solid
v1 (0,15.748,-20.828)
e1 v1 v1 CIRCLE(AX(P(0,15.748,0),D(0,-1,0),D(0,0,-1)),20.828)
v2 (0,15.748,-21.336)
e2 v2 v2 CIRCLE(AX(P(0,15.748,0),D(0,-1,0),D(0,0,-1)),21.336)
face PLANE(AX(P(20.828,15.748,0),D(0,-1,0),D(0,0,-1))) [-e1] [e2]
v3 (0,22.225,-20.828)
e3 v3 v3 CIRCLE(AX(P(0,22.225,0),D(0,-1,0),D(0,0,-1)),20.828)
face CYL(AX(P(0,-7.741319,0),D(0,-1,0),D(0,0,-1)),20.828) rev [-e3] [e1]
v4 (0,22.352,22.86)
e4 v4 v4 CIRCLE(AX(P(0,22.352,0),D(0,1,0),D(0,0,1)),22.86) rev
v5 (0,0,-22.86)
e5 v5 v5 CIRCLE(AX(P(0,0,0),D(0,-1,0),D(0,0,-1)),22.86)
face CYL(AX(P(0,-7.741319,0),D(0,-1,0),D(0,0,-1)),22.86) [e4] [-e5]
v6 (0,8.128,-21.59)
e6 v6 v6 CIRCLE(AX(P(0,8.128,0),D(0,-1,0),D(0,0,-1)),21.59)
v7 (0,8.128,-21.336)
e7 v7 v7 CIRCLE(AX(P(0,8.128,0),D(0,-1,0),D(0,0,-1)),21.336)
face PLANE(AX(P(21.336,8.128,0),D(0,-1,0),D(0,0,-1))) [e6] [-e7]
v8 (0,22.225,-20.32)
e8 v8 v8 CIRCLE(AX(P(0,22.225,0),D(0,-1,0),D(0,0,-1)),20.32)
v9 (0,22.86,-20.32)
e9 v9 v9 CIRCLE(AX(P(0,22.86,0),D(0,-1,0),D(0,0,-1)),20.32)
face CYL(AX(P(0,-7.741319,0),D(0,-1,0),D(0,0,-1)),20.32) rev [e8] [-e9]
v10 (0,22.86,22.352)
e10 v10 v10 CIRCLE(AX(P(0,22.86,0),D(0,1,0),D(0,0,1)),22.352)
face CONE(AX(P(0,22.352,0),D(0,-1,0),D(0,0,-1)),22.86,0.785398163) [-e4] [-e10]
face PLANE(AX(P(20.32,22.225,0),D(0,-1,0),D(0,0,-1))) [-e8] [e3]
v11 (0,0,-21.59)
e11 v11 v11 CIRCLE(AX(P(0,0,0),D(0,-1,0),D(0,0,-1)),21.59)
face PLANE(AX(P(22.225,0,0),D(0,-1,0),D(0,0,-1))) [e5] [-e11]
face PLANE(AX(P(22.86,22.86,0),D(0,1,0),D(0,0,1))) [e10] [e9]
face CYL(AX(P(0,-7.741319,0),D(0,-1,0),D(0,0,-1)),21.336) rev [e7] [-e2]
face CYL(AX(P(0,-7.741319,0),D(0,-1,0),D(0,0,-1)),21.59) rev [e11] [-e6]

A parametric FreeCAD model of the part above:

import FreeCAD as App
import Part
import Sketcher
from FreeCAD import Vector
Q = App.Units.Quantity


def edges_at(feature, points):
    """Names of the edges that pass closest to the given points."""
    edges = feature.Shape.Edges
    near = lambda p: min(range(len(edges)), key=lambda i: edges[i].distToShape(Part.Vertex(*p))[0])
    return sorted({f"Edge{near(p) + 1}" for p in points})

doc = App.newDocument("Part")
params = doc.addObject("Spreadsheet::Sheet", "Params")
for row, (alias, value) in enumerate([
    ("sketch1_width", "0.1 in"),
    ("sketch1_height", "0.3 in"),
    ("sketch1_height2", "0.9 in"),
    ("sketch1_width2", "0.02 in"),
    ("sketch1_width3", "0.01 in"),
    ("revolution_angle", "360 deg"),
    ("chamfer_size", "0.02 in"),
    ("chamfer2_size", "0.01 in"),
    ("sketch2_diameter", "1.8 in"),
    ("sketch2_diameter2", "1.7 in"),
    ("pad1_length", "0.095 in"),
], start=1):
    params.set(f"A{row}", alias)
    params.set(f"B{row}", "=" + value)
    params.setAlias(f"B{row}", alias)

body = doc.addObject("PartDesign::Body", "Body")

sketch1 = body.newObject("Sketcher::SketchObject", "Sketch")
sketch1.AttachmentSupport = (doc.getObject("XY_Plane"), [""])
sketch1.MapMode = "FlatFace"
sketch1.addGeometry([
    Part.LineSegment(Vector(20.32, 22.86, 0), Vector(20.32, 22.23, 0)),
    Part.LineSegment(Vector(20.32, 22.23, 0), Vector(20.83, 22.23, 0)),
    Part.LineSegment(Vector(20.83, 22.23, 0), Vector(20.83, 15.75, 0)),
    Part.LineSegment(Vector(20.83, 15.75, 0), Vector(21.34, 15.75, 0)),
    Part.LineSegment(Vector(21.34, 15.75, 0), Vector(21.34, 8.13, 0)),
    Part.LineSegment(Vector(21.34, 8.13, 0), Vector(21.59, 8.13, 0)),
    Part.LineSegment(Vector(21.59, 8.13, 0), Vector(21.59, 2.41, 0)),
    Part.LineSegment(Vector(21.59, 2.41, 0), Vector(22.23, 2.41, 0)),
    Part.LineSegment(Vector(22.23, 2.41, 0), Vector(22.23, 0, 0)),
    Part.LineSegment(Vector(22.23, 0, 0), Vector(22.86, 0, 0)),
    Part.LineSegment(Vector(22.86, 0, 0), Vector(22.86, 22.86, 0)),
    Part.LineSegment(Vector(22.86, 22.86, 0), Vector(20.32, 22.86, 0)),
], False)
sketch1.addConstraint([
    Sketcher.Constraint("Coincident", 0, 2, 1, 1),
    Sketcher.Constraint("Coincident", 1, 2, 2, 1),
    Sketcher.Constraint("Coincident", 2, 2, 3, 1),
    Sketcher.Constraint("Coincident", 3, 2, 4, 1),
    Sketcher.Constraint("Coincident", 4, 2, 5, 1),
    Sketcher.Constraint("Coincident", 5, 2, 6, 1),
    Sketcher.Constraint("Coincident", 6, 2, 7, 1),
    Sketcher.Constraint("Coincident", 7, 2, 8, 1),
    Sketcher.Constraint("Coincident", 8, 2, 9, 1),
    Sketcher.Constraint("Coincident", 9, 2, 10, 1),
    Sketcher.Constraint("Coincident", 10, 2, 11, 1),
    Sketcher.Constraint("Coincident", 11, 2, 0, 1),
    Sketcher.Constraint("Vertical", 0),
    Sketcher.Constraint("Horizontal", 1),
    Sketcher.Constraint("Vertical", 2),
    Sketcher.Constraint("Horizontal", 3),
    Sketcher.Constraint("Vertical", 4),
    Sketcher.Constraint("Horizontal", 5),
    Sketcher.Constraint("Vertical", 6),
    Sketcher.Constraint("Horizontal", 7),
    Sketcher.Constraint("Vertical", 8),
    Sketcher.Constraint("Horizontal", 9),
    Sketcher.Constraint("Vertical", 10),
    Sketcher.Constraint("Horizontal", 11),
    Sketcher.Constraint("PointOnObject", 8, 2, -1),
    Sketcher.Constraint("Equal", 1, 3),
    Sketcher.Constraint("Equal", 7, 9),
    Sketcher.Constraint("Equal", 9, 0),
    Sketcher.Constraint("DistanceX", 11, 2, 11, 1, Q("0.1 in")),
    Sketcher.Constraint("DistanceY", 4, 2, 4, 1, Q("0.3 in")),
    Sketcher.Constraint("DistanceY", 10, 1, 10, 2, Q("0.9 in")),
    Sketcher.Constraint("DistanceX", 1, 1, 1, 2, Q("0.02 in")),
    Sketcher.Constraint("DistanceX", 5, 1, 5, 2, Q("0.01 in")),
    Sketcher.Constraint("DistanceX", -1, 1, 0, 2, Q("0.8 in")),
    Sketcher.Constraint("DistanceY", 2, 2, 2, 1, Q("0.255 in")),
    Sketcher.Constraint("DistanceY", 6, 2, 6, 1, Q("0.225 in")),
])
sketch1.setExpression("Constraints[28]", "Params.sketch1_width")
sketch1.setExpression("Constraints[29]", "Params.sketch1_height")
sketch1.setExpression("Constraints[30]", "Params.sketch1_height2")
sketch1.setExpression("Constraints[31]", "Params.sketch1_width2")
sketch1.setExpression("Constraints[32]", "Params.sketch1_width3")
revolution = body.newObject("PartDesign::Revolution", "Revolution")
revolution.Profile = sketch1
revolution.ReferenceAxis = (sketch1, ["V_Axis"])
revolution.setExpression("Angle", "Params.revolution_angle")
doc.recompute()

chamfer = body.newObject("PartDesign::Chamfer", "Chamfer")
chamfer.Base = (revolution, edges_at(revolution, [(0, 22.86, 22.86)]))
chamfer.setExpression("Size", "Params.chamfer_size")
doc.recompute()

chamfer2 = body.newObject("PartDesign::Chamfer", "Chamfer001")
chamfer2.Base = (chamfer, edges_at(chamfer, [(0, 0, 22.225)]))
chamfer2.setExpression("Size", "Params.chamfer2_size")

sketch2 = body.newObject("Sketcher::SketchObject", "Sketch001")
sketch2.AttachmentSupport = (doc.getObject("XZ_Plane"), [""])
sketch2.MapMode = "FlatFace"
sketch2.addGeometry([
    Part.Circle(Vector(0, 0, 0), Vector(0, 0, 1), 23),
    Part.Circle(Vector(0, 0, 0), Vector(0, 0, 1), 22),
], False)
sketch2.addConstraint([
    Sketcher.Constraint("Coincident", 0, 3, -1, 1),
    Sketcher.Constraint("Coincident", 1, 3, -1, 1),
    Sketcher.Constraint("Diameter", 0, Q("1.8 in")),
    Sketcher.Constraint("Diameter", 1, Q("1.7 in")),
])
sketch2.setExpression("Constraints[2]", "Params.sketch2_diameter")
sketch2.setExpression("Constraints[3]", "Params.sketch2_diameter2")
pad1 = body.newObject("PartDesign::Pad", "Pad")
pad1.Profile = sketch2
pad1.setExpression("Length", "Params.pad1_length")
pad1.Reversed = True

doc.recompute()
